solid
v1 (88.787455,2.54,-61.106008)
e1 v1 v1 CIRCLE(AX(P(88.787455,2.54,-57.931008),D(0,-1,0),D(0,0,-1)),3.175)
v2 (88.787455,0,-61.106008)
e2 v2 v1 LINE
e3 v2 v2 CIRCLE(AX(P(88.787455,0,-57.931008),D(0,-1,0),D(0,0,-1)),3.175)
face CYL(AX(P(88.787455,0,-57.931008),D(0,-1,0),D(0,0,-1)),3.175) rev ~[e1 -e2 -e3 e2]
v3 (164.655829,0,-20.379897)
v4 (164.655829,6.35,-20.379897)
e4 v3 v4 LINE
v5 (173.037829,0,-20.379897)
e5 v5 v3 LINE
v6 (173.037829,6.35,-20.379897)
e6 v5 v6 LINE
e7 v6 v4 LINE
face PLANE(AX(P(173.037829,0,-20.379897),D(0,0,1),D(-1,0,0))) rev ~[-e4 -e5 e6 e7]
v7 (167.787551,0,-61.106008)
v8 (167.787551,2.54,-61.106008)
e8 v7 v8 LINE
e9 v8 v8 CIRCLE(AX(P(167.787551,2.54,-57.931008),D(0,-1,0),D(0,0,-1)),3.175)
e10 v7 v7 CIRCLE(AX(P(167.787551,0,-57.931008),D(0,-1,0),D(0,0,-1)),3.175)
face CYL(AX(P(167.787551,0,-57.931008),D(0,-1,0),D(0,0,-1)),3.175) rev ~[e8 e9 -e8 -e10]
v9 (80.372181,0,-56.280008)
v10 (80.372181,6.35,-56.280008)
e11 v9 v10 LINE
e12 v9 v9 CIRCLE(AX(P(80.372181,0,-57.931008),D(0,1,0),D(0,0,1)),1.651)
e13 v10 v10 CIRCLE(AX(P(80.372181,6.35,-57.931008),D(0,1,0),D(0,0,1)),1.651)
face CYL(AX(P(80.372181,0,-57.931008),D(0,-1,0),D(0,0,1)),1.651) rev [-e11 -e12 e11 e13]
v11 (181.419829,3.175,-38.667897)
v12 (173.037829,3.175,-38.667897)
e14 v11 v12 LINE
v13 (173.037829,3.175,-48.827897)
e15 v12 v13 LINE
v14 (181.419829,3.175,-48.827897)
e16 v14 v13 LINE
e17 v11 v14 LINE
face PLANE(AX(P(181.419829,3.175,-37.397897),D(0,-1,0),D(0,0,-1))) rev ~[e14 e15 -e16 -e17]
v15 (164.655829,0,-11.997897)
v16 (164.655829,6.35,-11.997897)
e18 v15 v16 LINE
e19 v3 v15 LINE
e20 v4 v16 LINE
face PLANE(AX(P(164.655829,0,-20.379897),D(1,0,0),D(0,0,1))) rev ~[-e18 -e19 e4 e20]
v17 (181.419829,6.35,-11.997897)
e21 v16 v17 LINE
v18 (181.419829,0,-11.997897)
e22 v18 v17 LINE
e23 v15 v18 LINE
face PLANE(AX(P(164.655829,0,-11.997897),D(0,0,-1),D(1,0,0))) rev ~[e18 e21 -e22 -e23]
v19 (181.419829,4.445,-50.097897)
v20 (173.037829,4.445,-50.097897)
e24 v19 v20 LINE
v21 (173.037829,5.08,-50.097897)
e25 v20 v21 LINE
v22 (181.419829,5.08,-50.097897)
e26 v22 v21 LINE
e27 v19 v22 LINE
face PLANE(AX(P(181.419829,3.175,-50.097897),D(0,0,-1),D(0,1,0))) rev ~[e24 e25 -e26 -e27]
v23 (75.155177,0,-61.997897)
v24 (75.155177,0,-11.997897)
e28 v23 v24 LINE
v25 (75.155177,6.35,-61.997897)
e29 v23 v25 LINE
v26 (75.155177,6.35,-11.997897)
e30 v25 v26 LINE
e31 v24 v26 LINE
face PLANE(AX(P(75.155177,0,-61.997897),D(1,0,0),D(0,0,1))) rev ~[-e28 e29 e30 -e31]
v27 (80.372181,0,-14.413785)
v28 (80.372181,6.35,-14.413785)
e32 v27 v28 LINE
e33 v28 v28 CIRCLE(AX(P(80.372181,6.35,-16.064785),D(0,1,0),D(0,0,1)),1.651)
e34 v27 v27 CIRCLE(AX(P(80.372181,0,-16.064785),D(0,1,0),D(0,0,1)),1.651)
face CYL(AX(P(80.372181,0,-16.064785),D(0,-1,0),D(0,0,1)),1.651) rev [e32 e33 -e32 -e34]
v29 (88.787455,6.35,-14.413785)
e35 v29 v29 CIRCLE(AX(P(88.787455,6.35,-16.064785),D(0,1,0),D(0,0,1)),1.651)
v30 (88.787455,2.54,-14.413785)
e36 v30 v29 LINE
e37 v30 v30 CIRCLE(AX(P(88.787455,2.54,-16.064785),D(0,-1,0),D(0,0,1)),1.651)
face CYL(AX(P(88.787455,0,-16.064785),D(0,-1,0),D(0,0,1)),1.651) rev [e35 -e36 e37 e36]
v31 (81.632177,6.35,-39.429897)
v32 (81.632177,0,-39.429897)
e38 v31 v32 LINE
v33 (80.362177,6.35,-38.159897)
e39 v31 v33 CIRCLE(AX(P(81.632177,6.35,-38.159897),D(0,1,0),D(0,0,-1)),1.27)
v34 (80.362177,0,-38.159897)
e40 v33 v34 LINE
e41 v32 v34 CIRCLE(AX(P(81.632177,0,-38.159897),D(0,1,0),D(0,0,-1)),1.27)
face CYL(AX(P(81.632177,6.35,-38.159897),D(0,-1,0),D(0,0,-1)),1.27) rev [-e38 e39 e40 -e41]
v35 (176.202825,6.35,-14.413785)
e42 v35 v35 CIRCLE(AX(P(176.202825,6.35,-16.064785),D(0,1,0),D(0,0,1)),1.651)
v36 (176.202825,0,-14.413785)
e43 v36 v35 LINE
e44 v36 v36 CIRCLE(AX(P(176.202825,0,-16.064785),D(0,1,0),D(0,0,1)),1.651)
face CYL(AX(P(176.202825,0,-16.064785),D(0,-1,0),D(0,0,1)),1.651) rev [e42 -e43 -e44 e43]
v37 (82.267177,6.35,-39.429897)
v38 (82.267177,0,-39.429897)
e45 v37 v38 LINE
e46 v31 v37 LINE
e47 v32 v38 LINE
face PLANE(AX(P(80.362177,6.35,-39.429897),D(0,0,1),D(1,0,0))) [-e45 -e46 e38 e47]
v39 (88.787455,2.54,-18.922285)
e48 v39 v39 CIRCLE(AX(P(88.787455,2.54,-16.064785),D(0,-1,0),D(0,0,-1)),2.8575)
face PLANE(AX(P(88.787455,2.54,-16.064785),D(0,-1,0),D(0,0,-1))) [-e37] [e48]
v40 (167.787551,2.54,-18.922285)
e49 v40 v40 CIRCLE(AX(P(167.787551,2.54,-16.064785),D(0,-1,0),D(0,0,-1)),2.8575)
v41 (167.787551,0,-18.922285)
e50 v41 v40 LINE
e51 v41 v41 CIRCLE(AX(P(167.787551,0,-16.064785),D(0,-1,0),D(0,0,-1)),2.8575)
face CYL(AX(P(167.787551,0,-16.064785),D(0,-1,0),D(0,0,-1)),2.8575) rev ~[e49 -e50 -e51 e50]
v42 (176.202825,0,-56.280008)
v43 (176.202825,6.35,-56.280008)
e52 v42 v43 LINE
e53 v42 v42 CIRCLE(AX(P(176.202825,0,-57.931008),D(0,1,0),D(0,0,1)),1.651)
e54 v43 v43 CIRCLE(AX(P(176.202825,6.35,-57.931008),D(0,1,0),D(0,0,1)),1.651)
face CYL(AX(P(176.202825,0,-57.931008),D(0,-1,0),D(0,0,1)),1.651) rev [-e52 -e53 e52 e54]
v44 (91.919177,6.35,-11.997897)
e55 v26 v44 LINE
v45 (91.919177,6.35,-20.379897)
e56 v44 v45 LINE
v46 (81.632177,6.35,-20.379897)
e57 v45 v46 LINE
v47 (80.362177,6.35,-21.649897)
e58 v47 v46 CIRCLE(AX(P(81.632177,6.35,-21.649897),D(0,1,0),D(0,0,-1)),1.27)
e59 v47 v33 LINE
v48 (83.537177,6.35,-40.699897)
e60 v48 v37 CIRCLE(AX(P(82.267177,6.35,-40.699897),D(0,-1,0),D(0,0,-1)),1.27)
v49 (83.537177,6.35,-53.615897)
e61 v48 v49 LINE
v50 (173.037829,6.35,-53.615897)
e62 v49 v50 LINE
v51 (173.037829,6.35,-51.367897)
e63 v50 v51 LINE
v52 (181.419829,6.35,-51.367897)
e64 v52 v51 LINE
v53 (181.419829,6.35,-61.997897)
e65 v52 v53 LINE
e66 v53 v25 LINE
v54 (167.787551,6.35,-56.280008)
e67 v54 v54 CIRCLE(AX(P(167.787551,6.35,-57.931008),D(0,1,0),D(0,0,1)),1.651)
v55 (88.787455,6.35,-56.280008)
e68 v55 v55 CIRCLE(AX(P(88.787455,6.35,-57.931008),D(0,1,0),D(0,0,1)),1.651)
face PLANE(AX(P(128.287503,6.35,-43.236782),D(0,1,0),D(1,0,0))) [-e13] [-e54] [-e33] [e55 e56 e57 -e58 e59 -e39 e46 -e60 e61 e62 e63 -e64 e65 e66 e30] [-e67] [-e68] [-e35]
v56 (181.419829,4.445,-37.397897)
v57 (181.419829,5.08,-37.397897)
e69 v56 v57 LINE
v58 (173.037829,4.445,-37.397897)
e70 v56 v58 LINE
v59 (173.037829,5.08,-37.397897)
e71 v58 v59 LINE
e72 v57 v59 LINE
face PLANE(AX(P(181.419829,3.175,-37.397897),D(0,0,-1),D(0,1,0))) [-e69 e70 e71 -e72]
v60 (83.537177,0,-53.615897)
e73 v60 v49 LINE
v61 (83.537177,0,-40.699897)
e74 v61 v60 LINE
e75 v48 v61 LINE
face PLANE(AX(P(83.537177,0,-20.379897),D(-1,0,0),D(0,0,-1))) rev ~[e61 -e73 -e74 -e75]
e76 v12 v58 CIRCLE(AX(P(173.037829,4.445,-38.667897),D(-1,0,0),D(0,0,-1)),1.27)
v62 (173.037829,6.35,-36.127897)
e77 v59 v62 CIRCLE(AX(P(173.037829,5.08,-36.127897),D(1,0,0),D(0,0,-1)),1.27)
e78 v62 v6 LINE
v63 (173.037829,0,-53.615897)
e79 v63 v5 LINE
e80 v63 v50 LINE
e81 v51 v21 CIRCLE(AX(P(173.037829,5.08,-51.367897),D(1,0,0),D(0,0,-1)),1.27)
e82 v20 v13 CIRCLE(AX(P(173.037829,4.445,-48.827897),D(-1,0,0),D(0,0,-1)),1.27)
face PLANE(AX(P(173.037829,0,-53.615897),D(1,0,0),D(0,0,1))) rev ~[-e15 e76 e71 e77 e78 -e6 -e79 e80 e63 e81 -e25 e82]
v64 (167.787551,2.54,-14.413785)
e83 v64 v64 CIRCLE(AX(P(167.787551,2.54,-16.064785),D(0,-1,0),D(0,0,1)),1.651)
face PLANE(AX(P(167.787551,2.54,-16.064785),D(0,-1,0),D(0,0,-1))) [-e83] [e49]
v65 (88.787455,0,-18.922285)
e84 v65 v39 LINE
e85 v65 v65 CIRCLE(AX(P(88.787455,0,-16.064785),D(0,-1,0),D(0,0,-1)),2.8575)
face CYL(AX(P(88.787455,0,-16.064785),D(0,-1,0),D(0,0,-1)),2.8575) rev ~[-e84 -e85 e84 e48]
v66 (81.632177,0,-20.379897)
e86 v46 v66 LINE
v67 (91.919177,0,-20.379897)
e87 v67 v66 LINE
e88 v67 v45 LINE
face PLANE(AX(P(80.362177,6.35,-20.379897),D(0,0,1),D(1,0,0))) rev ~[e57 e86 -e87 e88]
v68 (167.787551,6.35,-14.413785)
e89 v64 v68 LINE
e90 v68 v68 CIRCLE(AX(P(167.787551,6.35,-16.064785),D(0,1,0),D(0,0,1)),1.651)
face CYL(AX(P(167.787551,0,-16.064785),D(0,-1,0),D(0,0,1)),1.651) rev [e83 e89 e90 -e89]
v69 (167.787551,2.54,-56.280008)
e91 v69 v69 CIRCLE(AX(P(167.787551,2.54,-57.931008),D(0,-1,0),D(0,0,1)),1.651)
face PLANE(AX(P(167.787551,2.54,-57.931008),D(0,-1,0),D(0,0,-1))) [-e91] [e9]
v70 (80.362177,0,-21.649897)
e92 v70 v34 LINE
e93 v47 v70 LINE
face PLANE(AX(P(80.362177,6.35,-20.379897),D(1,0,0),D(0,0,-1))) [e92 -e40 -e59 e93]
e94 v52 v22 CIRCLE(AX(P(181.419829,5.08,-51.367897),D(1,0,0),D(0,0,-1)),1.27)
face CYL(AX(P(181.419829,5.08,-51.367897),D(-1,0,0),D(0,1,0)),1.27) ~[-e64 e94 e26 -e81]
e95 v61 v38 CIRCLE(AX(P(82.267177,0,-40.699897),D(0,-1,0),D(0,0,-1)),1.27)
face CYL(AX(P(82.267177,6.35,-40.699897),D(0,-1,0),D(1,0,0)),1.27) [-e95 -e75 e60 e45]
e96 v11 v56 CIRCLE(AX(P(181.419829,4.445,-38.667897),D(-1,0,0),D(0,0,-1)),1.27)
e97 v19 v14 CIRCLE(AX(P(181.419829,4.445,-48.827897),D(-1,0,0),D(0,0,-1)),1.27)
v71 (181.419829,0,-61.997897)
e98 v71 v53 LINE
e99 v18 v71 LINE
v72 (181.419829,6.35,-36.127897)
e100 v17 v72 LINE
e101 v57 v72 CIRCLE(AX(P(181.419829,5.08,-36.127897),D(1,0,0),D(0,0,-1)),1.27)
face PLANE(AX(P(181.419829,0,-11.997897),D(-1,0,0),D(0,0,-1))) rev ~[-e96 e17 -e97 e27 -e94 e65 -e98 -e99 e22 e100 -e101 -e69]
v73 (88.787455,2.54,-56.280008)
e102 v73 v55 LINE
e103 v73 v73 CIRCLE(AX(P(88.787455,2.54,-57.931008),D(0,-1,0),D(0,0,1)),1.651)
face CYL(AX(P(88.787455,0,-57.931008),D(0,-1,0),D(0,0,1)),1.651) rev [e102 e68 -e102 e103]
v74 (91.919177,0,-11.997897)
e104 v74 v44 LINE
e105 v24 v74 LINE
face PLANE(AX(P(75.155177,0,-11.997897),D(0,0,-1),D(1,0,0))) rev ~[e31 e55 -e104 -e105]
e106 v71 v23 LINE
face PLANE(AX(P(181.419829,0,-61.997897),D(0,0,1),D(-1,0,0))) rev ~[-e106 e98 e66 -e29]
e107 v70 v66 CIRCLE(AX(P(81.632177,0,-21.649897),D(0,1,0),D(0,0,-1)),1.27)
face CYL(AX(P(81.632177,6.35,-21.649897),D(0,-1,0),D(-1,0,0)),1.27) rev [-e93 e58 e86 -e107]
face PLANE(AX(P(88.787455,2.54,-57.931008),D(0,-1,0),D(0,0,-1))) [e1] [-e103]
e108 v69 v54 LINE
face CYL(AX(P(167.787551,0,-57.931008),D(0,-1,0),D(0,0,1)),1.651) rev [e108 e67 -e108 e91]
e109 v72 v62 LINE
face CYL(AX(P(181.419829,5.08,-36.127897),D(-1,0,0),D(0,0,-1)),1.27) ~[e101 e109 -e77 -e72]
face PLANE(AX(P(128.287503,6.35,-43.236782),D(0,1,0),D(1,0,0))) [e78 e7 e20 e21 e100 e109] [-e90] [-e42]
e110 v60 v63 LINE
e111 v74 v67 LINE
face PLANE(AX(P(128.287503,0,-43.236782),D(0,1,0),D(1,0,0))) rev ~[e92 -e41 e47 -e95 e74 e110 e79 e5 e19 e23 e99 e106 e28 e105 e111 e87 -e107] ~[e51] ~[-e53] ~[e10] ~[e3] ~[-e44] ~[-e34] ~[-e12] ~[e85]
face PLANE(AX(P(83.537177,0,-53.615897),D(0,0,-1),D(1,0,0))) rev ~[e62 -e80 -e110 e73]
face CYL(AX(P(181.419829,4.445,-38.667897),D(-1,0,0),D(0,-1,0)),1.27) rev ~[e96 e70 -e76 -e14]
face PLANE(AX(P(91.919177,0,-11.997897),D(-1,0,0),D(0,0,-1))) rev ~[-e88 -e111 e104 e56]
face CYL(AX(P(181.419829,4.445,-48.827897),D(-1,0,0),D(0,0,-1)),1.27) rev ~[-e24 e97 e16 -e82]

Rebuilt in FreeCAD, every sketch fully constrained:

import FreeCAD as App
import Part
import Sketcher
from FreeCAD import Vector
Q = App.Units.Quantity


def edges_at(feature, points):
    """Names of the edges that pass closest to the given points."""
    edges = feature.Shape.Edges
    near = lambda p: min(range(len(edges)), key=lambda i: edges[i].distToShape(Part.Vertex(*p))[0])
    return sorted({f"Edge{near(p) + 1}" for p in points})


def add_polygon(sketch, points):
    """Adds a closed chain of lines whose ends are joined by coincident constraints."""
    first, n = sketch.GeometryCount, len(points)
    for a, b in zip(points, points[1:] + points[:1]):
        sketch.addGeometry(Part.LineSegment(App.Vector(*a, 0), App.Vector(*b, 0)), False)
    for i in range(n):
        sketch.addConstraint(Sketcher.Constraint("Coincident", first + i, 2, first + (i + 1) % n, 1))

doc = App.newDocument("Part")
body = doc.addObject("PartDesign::Body", "Body")

# Sketch on XZ plane
sketch1 = body.newObject("Sketcher::SketchObject", "Sketch")
sketch1.AttachmentSupport = (doc.getObject("XZ_Plane"), [""])
sketch1.MapMode = "FlatFace"
add_polygon(sketch1, [(75.155177, -61.997897), (75.155177, -11.997897), (91.919177, -11.997897), (91.919177, -20.379897), (83.537177, -20.379897), (83.537177, -53.615897), (173.037829, -53.615897), (173.037829, -20.379897), (164.655829, -20.379897), (164.655829, -11.997897), (181.419829, -11.997897), (181.419829, -61.997897)])  # lines 0-11
sketch1.addGeometry(Part.Circle(Vector(80.372181, -16.064785, 0), Vector(0, 0, 1), 1.651), False)  # 12
sketch1.addGeometry(Part.Circle(Vector(88.787455, -16.064785, 0), Vector(0, 0, 1), 1.651), False)  # 13
sketch1.addGeometry(Part.Circle(Vector(167.787551, -16.064785, 0), Vector(0, 0, 1), 1.651), False)  # 14
sketch1.addGeometry(Part.Circle(Vector(176.202825, -16.064785, 0), Vector(0, 0, 1), 1.651), False)  # 15
sketch1.addGeometry(Part.Circle(Vector(80.372181, -57.931008, 0), Vector(0, 0, 1), 1.651), False)  # 16
sketch1.addGeometry(Part.Circle(Vector(88.787455, -57.931008, 0), Vector(0, 0, 1), 1.651), False)  # 17
sketch1.addGeometry(Part.Circle(Vector(167.787551, -57.931008, 0), Vector(0, 0, 1), 1.651), False)  # 18
sketch1.addGeometry(Part.Circle(Vector(176.202825, -57.931008, 0), Vector(0, 0, 1), 1.651), False)  # 19
sketch1.addConstraint(Sketcher.Constraint("Vertical", 0))
sketch1.addConstraint(Sketcher.Constraint("Horizontal", 1))
sketch1.addConstraint(Sketcher.Constraint("Vertical", 2))
sketch1.addConstraint(Sketcher.Constraint("Horizontal", 3))
sketch1.addConstraint(Sketcher.Constraint("Vertical", 4))
sketch1.addConstraint(Sketcher.Constraint("Horizontal", 5))
sketch1.addConstraint(Sketcher.Constraint("Vertical", 6))
sketch1.addConstraint(Sketcher.Constraint("Horizontal", 7))
sketch1.addConstraint(Sketcher.Constraint("Vertical", 8))
sketch1.addConstraint(Sketcher.Constraint("Horizontal", 9))
sketch1.addConstraint(Sketcher.Constraint("Vertical", 10))
sketch1.addConstraint(Sketcher.Constraint("Horizontal", 11))
sketch1.addConstraint(Sketcher.Constraint("Equal", 12, 13))
sketch1.addConstraint(Sketcher.Constraint("Equal", 13, 14))
sketch1.addConstraint(Sketcher.Constraint("Equal", 14, 15))
sketch1.addConstraint(Sketcher.Constraint("Equal", 15, 16))
sketch1.addConstraint(Sketcher.Constraint("Equal", 16, 17))
sketch1.addConstraint(Sketcher.Constraint("Equal", 17, 18))
sketch1.addConstraint(Sketcher.Constraint("Equal", 18, 19))
sketch1.addConstraint(Sketcher.Constraint("Horizontal", 12, 3, 13, 3))
sketch1.addConstraint(Sketcher.Constraint("Horizontal", 13, 3, 14, 3))
sketch1.addConstraint(Sketcher.Constraint("Horizontal", 14, 3, 15, 3))
sketch1.addConstraint(Sketcher.Constraint("Horizontal", 16, 3, 17, 3))
sketch1.addConstraint(Sketcher.Constraint("Horizontal", 17, 3, 18, 3))
sketch1.addConstraint(Sketcher.Constraint("Horizontal", 18, 3, 19, 3))
sketch1.addConstraint(Sketcher.Constraint("Horizontal", 3, 2, 6, 2))
sketch1.addConstraint(Sketcher.Constraint("Horizontal", 1, 2, 8, 2))
sketch1.addConstraint(Sketcher.Constraint("Vertical", 12, 3, 16, 3))
sketch1.addConstraint(Sketcher.Constraint("Vertical", 13, 3, 17, 3))
sketch1.addConstraint(Sketcher.Constraint("Vertical", 14, 3, 18, 3))
sketch1.addConstraint(Sketcher.Constraint("Vertical", 15, 3, 19, 3))
sketch1.addConstraint(Sketcher.Constraint("Equal", 3, 7))
sketch1.addConstraint(Sketcher.Constraint("Equal", 1, 9))
sketch1.addConstraint(Sketcher.Constraint("Equal", 7, 2))
sketch1.addConstraint(Sketcher.Constraint("Diameter", 12, Q("0.13 in")))
sketch1.addConstraint(Sketcher.Constraint("DistanceX", 1, 1, 1, 2, Q("0.66 in")))
sketch1.addConstraint(Sketcher.Constraint("DistanceX", 3, 2, 3, 1, Q("0.33 in")))
sketch1.addConstraint(Sketcher.Constraint("DistanceY", 10, 2, 5, 2, Q("0.33 in")))
sketch1.addConstraint(Sketcher.Constraint("DistanceY", 0, 1, 0, 2, 50.0))
sketch1.addConstraint(Sketcher.Constraint("DistanceX", 5, 1, 5, 2, 89.500652))
sketch1.addConstraint(Sketcher.Constraint("DistanceX", -1, 1, 12, 3, 80.372181))
sketch1.addConstraint(Sketcher.Constraint("DistanceX", -1, 1, 14, 3, 167.787551))
sketch1.addConstraint(Sketcher.Constraint("DistanceY", 16, 3, -1, 1, 57.931008))
sketch1.addConstraint(Sketcher.Constraint("DistanceX", -1, 1, 5, 2, 173.037829))
sketch1.addConstraint(Sketcher.Constraint("DistanceX", 13, 3, 15, 3, 87.41537))
sketch1.addConstraint(Sketcher.Constraint("DistanceY", 12, 3, 0, 2, 4.066888))
sketch1.addConstraint(Sketcher.Constraint("DistanceX", 0, 2, 13, 3, 13.632278))
sketch1.addConstraint(Sketcher.Constraint("DistanceY", 16, 3, 0, 2, 45.933112))
pad1 = body.newObject("PartDesign::Pad", "Pad")
pad1.Profile = sketch1
pad1.Length = Q("0.25 in")
pad1.Reversed = True

# Sketch on YZ plane
sketch2 = body.newObject("Sketcher::SketchObject", "Sketch001")
sketch2.AttachmentSupport = (doc.getObject("YZ_Plane"), [""])
sketch2.MapMode = "FlatFace"
sketch2.AttachmentOffset = App.Placement(Vector(0, 0, 181.419829), App.Rotation())
add_polygon(sketch2, [(6.35, -37.397897), (3.175, -37.397897), (3.175, -50.097897), (6.35, -50.097897)])  # lines 0-3
sketch2.addConstraint(Sketcher.Constraint("Horizontal", 0))
sketch2.addConstraint(Sketcher.Constraint("Vertical", 1))
sketch2.addConstraint(Sketcher.Constraint("Horizontal", 2))
sketch2.addConstraint(Sketcher.Constraint("Vertical", 3))
sketch2.addConstraint(Sketcher.Constraint("DistanceY", 1, 2, 1, 1, Q("0.5 in")))
sketch2.addConstraint(Sketcher.Constraint("DistanceX", 0, 2, 0, 1, Q("0.125 in")))
sketch2.addConstraint(Sketcher.Constraint("DistanceX", -1, 1, 2, 2, Q("0.25 in")))
sketch2.addConstraint(Sketcher.Constraint("DistanceY", 0, 2, -1, 1, 37.397897))
pocket1 = body.newObject("PartDesign::Pocket", "Pocket")
pocket1.Profile = sketch2
pocket1.Length = Q("0.35 in")
doc.recompute()

fillet = body.newObject("PartDesign::Fillet", "Fillet")
fillet.Base = (pocket1, edges_at(pocket1, [
    (177.229, 6.35, -37.398),
    (177.229, 6.35, -50.098),
    (177.229, 3.175, -50.098),
    (177.229, 3.175, -37.398),
]))
fillet.Radius = Q("0.05 in")

# Sketch on XZ plane
sketch3 = body.newObject("Sketcher::SketchObject", "Sketch002")
sketch3.AttachmentSupport = (doc.getObject("XZ_Plane"), [""])
sketch3.MapMode = "FlatFace"
sketch3.AttachmentOffset = App.Placement(Vector(0, 0, -0.25 * 25.4), App.Rotation())
add_polygon(sketch3, [(80.362177, -39.429897), (80.362177, -20.379897), (83.537177, -20.379897), (83.537177, -39.429897)])  # lines 0-3
sketch3.addConstraint(Sketcher.Constraint("Vertical", 0))
sketch3.addConstraint(Sketcher.Constraint("Horizontal", 1))
sketch3.addConstraint(Sketcher.Constraint("Vertical", 2))
sketch3.addConstraint(Sketcher.Constraint("Horizontal", 3))
sketch3.addConstraint(Sketcher.Constraint("DistanceY", 0, 1, 0, 2, Q("0.75 in")))
sketch3.addConstraint(Sketcher.Constraint("DistanceX", 1, 1, 1, 2, Q("0.125 in")))
sketch3.addConstraint(Sketcher.Constraint("DistanceX", -1, 1, 0, 2, 80.362177))
sketch3.addConstraint(Sketcher.Constraint("DistanceY", 0, 2, -1, 1, 20.379897))
pocket2 = body.newObject("PartDesign::Pocket", "Pocket001")
pocket2.Profile = sketch3
pocket2.Type = "ThroughAll"
pocket2.Reversed = True
doc.recompute()

fillet2 = body.newObject("PartDesign::Fillet", "Fillet001")
fillet2.Base = (pocket2, edges_at(pocket2, [(83.537, 3.175, -39.43), (80.362, 3.175, -20.38), (80.362, 3.175, -39.43)]))
fillet2.Radius = Q("0.05 in")

# Sketch on XZ plane
sketch4 = body.newObject("Sketcher::SketchObject", "Sketch003")
sketch4.AttachmentSupport = (doc.getObject("XZ_Plane"), [""])
sketch4.MapMode = "FlatFace"
sketch4.addGeometry(Part.Circle(Vector(88.787455, -16.064785, 0), Vector(0, 0, 1), 2.8575), False)
sketch4.addGeometry(Part.Circle(Vector(88.787455, -57.931008, 0), Vector(0, 0, 1), 3.175), False)
sketch4.addGeometry(Part.Circle(Vector(167.787551, -57.931008, 0), Vector(0, 0, 1), 3.175), False)
sketch4.addGeometry(Part.Circle(Vector(167.787551, -16.064785, 0), Vector(0, 0, 1), 2.8575), False)
sketch4.addConstraint(Sketcher.Constraint("Equal", 1, 2))
sketch4.addConstraint(Sketcher.Constraint("Equal", 0, 3))
sketch4.addConstraint(Sketcher.Constraint("Horizontal", 1, 3, 2, 3))
sketch4.addConstraint(Sketcher.Constraint("Horizontal", 0, 3, 3, 3))
sketch4.addConstraint(Sketcher.Constraint("Vertical", 0, 3, 1, 3))
sketch4.addConstraint(Sketcher.Constraint("Vertical", 2, 3, 3, 3))
sketch4.addConstraint(Sketcher.Constraint("Diameter", 1, Q("0.25 in")))
sketch4.addConstraint(Sketcher.Constraint("Diameter", 0, Q("0.225 in")))
sketch4.addConstraint(Sketcher.Constraint("DistanceY", 1, 3, -1, 1, 57.931008))
sketch4.addConstraint(Sketcher.Constraint("DistanceX", -1, 1, 2, 3, 167.787551))
sketch4.addConstraint(Sketcher.Constraint("DistanceX", -1, 1, 0, 3, 88.787455))
sketch4.addConstraint(Sketcher.Constraint("DistanceY", 0, 3, -1, 1, 16.064785))
pocket3 = body.newObject("PartDesign::Pocket", "Pocket002")
pocket3.Profile = sketch4
pocket3.Length = Q("0.1 in")

doc.recompute()
